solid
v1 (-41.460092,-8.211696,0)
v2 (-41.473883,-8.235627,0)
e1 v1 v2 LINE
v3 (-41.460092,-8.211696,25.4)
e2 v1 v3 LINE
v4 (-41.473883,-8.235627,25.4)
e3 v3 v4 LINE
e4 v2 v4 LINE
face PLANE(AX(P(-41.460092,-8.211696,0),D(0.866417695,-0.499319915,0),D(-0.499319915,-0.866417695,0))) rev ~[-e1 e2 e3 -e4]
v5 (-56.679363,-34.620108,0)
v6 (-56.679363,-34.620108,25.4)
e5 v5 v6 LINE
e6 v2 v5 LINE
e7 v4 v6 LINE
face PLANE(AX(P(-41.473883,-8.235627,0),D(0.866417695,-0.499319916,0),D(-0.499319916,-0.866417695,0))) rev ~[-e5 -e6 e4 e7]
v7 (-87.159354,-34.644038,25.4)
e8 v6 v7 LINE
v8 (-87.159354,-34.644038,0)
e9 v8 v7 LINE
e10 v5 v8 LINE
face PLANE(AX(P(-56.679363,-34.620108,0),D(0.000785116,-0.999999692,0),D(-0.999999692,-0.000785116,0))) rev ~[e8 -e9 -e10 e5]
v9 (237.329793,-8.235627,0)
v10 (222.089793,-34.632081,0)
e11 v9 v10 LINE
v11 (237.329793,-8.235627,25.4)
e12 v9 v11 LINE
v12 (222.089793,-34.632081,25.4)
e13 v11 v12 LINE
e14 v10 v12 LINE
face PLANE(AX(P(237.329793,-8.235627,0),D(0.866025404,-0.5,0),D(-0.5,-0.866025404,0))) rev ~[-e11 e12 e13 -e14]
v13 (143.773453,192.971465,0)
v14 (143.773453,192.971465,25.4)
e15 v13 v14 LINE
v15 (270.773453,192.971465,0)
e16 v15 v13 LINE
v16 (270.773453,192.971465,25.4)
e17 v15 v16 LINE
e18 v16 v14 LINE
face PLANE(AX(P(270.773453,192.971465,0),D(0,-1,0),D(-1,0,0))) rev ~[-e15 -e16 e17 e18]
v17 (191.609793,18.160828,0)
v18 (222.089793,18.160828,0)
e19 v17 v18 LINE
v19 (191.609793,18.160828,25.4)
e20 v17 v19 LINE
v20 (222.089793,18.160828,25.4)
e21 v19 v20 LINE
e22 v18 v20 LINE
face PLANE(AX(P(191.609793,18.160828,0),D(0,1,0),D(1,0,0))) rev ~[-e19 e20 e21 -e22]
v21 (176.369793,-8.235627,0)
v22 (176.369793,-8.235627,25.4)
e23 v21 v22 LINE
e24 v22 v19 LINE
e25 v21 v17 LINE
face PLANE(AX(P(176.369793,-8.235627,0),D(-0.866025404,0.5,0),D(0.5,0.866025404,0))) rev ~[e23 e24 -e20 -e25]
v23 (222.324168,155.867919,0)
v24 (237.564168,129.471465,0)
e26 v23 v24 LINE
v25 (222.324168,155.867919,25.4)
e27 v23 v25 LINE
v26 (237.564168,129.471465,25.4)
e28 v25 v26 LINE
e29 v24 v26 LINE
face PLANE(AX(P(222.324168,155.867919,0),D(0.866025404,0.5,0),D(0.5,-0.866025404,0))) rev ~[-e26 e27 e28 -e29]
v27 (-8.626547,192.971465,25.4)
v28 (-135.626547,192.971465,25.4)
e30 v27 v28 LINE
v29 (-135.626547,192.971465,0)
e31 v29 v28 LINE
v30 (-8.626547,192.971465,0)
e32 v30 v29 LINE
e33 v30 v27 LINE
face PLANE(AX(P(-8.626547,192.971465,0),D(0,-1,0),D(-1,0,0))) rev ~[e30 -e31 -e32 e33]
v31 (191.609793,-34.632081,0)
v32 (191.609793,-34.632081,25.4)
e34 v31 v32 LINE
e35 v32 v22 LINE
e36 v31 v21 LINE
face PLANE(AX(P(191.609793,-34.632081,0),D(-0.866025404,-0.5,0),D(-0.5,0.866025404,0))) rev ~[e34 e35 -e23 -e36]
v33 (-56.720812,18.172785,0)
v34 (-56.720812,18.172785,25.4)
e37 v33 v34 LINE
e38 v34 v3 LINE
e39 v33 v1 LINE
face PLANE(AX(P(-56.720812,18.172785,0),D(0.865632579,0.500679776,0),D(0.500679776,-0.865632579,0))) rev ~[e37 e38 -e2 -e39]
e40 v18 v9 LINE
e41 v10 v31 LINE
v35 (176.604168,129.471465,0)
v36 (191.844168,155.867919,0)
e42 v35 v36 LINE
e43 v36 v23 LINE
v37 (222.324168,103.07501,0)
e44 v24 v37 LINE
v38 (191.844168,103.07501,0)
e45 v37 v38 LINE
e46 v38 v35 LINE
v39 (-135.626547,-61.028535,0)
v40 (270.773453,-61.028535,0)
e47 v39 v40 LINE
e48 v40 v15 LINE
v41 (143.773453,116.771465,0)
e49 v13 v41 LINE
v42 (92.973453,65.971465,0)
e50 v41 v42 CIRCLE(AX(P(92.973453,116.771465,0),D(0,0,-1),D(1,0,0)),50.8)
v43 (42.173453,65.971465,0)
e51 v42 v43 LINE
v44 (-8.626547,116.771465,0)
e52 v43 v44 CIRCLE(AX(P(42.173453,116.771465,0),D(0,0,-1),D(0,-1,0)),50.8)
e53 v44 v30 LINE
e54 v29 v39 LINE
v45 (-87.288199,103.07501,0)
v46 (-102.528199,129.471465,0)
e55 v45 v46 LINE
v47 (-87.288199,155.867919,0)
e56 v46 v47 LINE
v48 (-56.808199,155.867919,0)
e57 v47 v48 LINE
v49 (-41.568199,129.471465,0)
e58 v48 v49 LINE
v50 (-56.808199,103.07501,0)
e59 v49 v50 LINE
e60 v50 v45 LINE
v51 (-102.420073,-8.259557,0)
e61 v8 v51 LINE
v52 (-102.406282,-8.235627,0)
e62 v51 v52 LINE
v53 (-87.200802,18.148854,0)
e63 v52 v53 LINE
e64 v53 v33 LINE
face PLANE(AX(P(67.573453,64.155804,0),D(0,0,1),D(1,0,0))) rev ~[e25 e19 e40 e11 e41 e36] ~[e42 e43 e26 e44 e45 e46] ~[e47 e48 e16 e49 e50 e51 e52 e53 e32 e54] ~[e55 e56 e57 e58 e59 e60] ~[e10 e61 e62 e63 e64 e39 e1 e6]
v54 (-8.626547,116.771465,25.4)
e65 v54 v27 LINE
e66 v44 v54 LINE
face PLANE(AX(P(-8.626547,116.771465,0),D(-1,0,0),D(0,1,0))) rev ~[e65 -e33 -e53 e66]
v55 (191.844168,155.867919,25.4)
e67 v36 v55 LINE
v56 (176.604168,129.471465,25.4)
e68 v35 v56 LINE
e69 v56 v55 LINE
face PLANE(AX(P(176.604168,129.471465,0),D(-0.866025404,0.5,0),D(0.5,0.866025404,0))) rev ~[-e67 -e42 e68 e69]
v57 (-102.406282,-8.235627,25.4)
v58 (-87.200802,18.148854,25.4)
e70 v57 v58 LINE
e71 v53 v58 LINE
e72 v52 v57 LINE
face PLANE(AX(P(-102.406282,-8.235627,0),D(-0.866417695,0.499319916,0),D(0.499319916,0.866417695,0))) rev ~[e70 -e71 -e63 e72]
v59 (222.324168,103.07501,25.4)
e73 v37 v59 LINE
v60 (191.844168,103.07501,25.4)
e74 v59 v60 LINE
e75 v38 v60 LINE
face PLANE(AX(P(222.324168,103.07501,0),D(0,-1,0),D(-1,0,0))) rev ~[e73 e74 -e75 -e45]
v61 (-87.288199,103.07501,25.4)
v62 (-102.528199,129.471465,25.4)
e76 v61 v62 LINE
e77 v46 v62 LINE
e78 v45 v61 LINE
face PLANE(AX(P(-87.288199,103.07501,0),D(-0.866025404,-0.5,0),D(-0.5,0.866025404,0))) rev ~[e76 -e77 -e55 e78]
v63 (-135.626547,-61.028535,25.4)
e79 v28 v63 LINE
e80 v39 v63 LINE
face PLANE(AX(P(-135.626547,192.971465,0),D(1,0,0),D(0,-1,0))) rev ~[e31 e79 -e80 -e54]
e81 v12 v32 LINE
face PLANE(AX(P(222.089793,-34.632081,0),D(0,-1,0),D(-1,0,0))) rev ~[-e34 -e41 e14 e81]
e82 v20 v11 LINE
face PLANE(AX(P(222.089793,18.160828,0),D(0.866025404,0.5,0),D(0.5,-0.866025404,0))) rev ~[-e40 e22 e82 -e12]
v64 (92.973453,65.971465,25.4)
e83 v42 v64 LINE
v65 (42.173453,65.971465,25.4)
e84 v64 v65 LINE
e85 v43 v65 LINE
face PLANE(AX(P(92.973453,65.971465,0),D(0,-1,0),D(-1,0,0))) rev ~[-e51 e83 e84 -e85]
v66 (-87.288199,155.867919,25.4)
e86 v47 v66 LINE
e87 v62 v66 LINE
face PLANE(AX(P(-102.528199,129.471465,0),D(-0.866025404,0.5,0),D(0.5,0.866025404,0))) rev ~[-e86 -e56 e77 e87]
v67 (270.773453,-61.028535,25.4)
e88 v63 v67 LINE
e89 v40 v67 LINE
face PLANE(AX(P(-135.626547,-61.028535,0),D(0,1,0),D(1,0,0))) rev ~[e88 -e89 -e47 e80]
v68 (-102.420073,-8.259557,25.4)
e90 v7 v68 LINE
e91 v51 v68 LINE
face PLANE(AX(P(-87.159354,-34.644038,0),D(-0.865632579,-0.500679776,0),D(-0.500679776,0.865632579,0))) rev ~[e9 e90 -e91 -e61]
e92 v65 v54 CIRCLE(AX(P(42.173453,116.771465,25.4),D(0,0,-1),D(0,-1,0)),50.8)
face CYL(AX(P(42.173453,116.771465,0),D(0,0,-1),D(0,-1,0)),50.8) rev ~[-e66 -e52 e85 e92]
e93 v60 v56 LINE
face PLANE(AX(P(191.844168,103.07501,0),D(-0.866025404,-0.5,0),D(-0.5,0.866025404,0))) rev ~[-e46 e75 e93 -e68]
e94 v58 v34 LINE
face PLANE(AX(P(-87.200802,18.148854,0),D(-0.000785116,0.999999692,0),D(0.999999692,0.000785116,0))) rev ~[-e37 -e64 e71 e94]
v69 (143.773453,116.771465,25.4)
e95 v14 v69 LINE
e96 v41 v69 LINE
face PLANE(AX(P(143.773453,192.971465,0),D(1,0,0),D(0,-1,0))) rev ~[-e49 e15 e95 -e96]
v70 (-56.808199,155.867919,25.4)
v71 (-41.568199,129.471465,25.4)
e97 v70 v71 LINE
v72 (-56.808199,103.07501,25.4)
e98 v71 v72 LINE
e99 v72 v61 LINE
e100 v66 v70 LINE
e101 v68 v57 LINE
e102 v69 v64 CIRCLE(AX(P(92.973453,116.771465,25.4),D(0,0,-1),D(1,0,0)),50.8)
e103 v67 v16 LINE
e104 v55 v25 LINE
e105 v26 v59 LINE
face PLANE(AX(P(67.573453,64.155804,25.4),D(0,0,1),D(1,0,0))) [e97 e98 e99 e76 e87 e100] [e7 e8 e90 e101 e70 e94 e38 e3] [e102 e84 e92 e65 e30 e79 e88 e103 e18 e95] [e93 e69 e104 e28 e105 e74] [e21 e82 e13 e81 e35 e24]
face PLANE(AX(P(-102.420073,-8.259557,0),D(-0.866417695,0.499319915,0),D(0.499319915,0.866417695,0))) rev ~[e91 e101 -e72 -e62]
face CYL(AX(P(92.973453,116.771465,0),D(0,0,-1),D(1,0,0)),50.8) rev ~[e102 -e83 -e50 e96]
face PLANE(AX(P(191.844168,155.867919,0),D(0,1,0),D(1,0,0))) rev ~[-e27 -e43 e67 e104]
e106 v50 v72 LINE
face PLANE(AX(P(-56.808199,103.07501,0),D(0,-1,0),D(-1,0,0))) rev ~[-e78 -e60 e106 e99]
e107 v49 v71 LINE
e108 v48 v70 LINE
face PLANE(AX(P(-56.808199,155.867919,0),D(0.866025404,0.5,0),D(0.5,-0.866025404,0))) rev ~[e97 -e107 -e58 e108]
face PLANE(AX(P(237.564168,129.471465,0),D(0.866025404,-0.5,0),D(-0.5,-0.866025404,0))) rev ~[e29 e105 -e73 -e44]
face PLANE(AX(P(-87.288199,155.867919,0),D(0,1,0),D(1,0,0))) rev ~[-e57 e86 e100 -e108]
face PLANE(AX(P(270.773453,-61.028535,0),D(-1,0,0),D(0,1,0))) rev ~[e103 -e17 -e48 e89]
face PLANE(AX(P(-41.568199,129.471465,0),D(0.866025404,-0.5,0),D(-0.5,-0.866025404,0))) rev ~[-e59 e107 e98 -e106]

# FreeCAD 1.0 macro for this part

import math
import FreeCAD as App
import Part
import Sketcher

V = App.Vector
Q = App.Units.Quantity


def add_polygon(sketch, points):
    """Adds a closed chain of lines whose ends are joined by coincident constraints."""
    first, n = sketch.GeometryCount, len(points)
    for a, b in zip(points, points[1:] + points[:1]):
        sketch.addGeometry(Part.LineSegment(App.Vector(*a, 0), App.Vector(*b, 0)), False)
    for i in range(n):
        sketch.addConstraint(Sketcher.Constraint("Coincident", first + i, 2, first + (i + 1) % n, 1))

doc = App.newDocument("Part")
body = doc.addObject("PartDesign::Body", "Body")

sketch1 = doc.addObject("Sketcher::SketchObject", "Sketch")
body.addObject(sketch1)
sketch1.AttachmentSupport = (doc.XY_Plane, [""])
sketch1.MapMode = "FlatFace"
sketch1.addGeometry(Part.LineSegment(V(-135.626547, 192.971465, 0), V(-135.626547, -61.028535, 0)), False)
sketch1.addGeometry(Part.LineSegment(V(-135.626547, -61.028535, 0), V(270.773453, -61.028535, 0)), False)
sketch1.addGeometry(Part.LineSegment(V(270.773453, -61.028535, 0), V(270.773453, 192.971465, 0)), False)
sketch1.addGeometry(Part.LineSegment(V(270.773453, 192.971465, 0), V(143.773453, 192.971465, 0)), False)
sketch1.addGeometry(Part.LineSegment(V(143.773453, 192.971465, 0), V(143.773453, 116.771465, 0)), False)
sketch1.addGeometry(Part.ArcOfCircle(Part.Circle(V(92.973453, 116.771465, 0), V(0, 0, 1), 50.8), math.radians(-90), math.radians(0)), False)
sketch1.addGeometry(Part.LineSegment(V(92.973453, 65.971465, 0), V(42.173453, 65.971465, 0)), False)
sketch1.addGeometry(Part.ArcOfCircle(Part.Circle(V(42.173453, 116.771465, 0), V(0, 0, 1), 50.8), math.radians(180), math.radians(270)), False)
sketch1.addGeometry(Part.LineSegment(V(-8.626547, 116.771465, 0), V(-8.626547, 192.971465, 0)), False)
sketch1.addGeometry(Part.LineSegment(V(-8.626547, 192.971465, 0), V(-135.626547, 192.971465, 0)), False)
add_polygon(sketch1, [(-41.460092, -8.211696), (-41.473883, -8.235627), (-56.679363, -34.620108), (-87.159354, -34.644038), (-102.420073, -8.259557), (-102.406282, -8.235627), (-87.200802, 18.148854), (-56.720812, 18.172785)])
add_polygon(sketch1, [(222.089793, 18.160828), (237.329793, -8.235627), (222.089793, -34.632081), (191.609793, -34.632081), (176.369793, -8.235627), (191.609793, 18.160828)])
add_polygon(sketch1, [(-56.808199, 155.867919), (-41.568199, 129.471465), (-56.808199, 103.07501), (-87.288199, 103.07501), (-102.528199, 129.471465), (-87.288199, 155.867919)])
add_polygon(sketch1, [(222.324168, 155.867919), (237.564168, 129.471465), (222.324168, 103.07501), (191.844168, 103.07501), (176.604168, 129.471465), (191.844168, 155.867919)])
sketch1.addConstraint(Sketcher.Constraint("Coincident", 0, 2, 1, 1))
sketch1.addConstraint(Sketcher.Constraint("Coincident", 1, 2, 2, 1))
sketch1.addConstraint(Sketcher.Constraint("Coincident", 2, 2, 3, 1))
sketch1.addConstraint(Sketcher.Constraint("Coincident", 3, 2, 4, 1))
sketch1.addConstraint(Sketcher.Constraint("Tangent", 4, 2, 5, 2))
sketch1.addConstraint(Sketcher.Constraint("Tangent", 5, 1, 6, 1))
sketch1.addConstraint(Sketcher.Constraint("Tangent", 6, 2, 7, 2))
sketch1.addConstraint(Sketcher.Constraint("Tangent", 7, 1, 8, 1))
sketch1.addConstraint(Sketcher.Constraint("Coincident", 8, 2, 9, 1))
sketch1.addConstraint(Sketcher.Constraint("Coincident", 9, 2, 0, 1))
sketch1.addConstraint(Sketcher.Constraint("Vertical", 0))
sketch1.addConstraint(Sketcher.Constraint("Horizontal", 1))
sketch1.addConstraint(Sketcher.Constraint("Vertical", 2))
sketch1.addConstraint(Sketcher.Constraint("Horizontal", 3))
sketch1.addConstraint(Sketcher.Constraint("Vertical", 4))
sketch1.addConstraint(Sketcher.Constraint("Horizontal", 6))
sketch1.addConstraint(Sketcher.Constraint("Vertical", 8))
sketch1.addConstraint(Sketcher.Constraint("Horizontal", 9))
sketch1.addConstraint(Sketcher.Constraint("Horizontal", 20))
sketch1.addConstraint(Sketcher.Constraint("Horizontal", 23))
sketch1.addConstraint(Sketcher.Constraint("Horizontal", 26))
sketch1.addConstraint(Sketcher.Constraint("Horizontal", 29))
sketch1.addConstraint(Sketcher.Constraint("Horizontal", 32))
sketch1.addConstraint(Sketcher.Constraint("Horizontal", 35))
sketch1.addConstraint(Sketcher.Constraint("Equal", 5, 7))
sketch1.addConstraint(Sketcher.Constraint("Parallel", 10, 11))
sketch1.addConstraint(Sketcher.Constraint("Parallel", 11, 14))
sketch1.addConstraint(Sketcher.Constraint("Parallel", 11, 15))
sketch1.addConstraint(Sketcher.Constraint("Parallel", 12, 16))
sketch1.addConstraint(Sketcher.Constraint("Parallel", 13, 17))
sketch1.addConstraint(Sketcher.Constraint("Parallel", 18, 21))
sketch1.addConstraint(Sketcher.Constraint("Parallel", 19, 22))
sketch1.addConstraint(Sketcher.Constraint("Parallel", 21, 24))
sketch1.addConstraint(Sketcher.Constraint("Parallel", 22, 25))
sketch1.addConstraint(Sketcher.Constraint("Parallel", 24, 27))
sketch1.addConstraint(Sketcher.Constraint("Parallel", 25, 28))
sketch1.addConstraint(Sketcher.Constraint("Parallel", 27, 30))
sketch1.addConstraint(Sketcher.Constraint("Parallel", 28, 31))
sketch1.addConstraint(Sketcher.Constraint("Parallel", 30, 33))
sketch1.addConstraint(Sketcher.Constraint("Parallel", 31, 34))
sketch1.addConstraint(Sketcher.Constraint("Horizontal", 3, 2, 8, 2))
sketch1.addConstraint(Sketcher.Constraint("Horizontal", 10, 2, 14, 2))
sketch1.addConstraint(Sketcher.Constraint("Horizontal", 14, 2, 18, 2))
sketch1.addConstraint(Sketcher.Constraint("Horizontal", 18, 2, 21, 2))
sketch1.addConstraint(Sketcher.Constraint("Horizontal", 24, 2, 27, 2))
sketch1.addConstraint(Sketcher.Constraint("Horizontal", 27, 2, 30, 2))
sketch1.addConstraint(Sketcher.Constraint("Horizontal", 26, 2, 31, 2))
sketch1.addConstraint(Sketcher.Constraint("Horizontal", 30, 2, 33, 2))
sketch1.addConstraint(Sketcher.Constraint("Horizontal", 29, 2, 34, 2))
sketch1.addConstraint(Sketcher.Constraint("Vertical", 20, 2, 22, 2))
sketch1.addConstraint(Sketcher.Constraint("Vertical", 19, 2, 23, 2))
sketch1.addConstraint(Sketcher.Constraint("Vertical", 26, 2, 28, 2))
sketch1.addConstraint(Sketcher.Constraint("Equal", 3, 9))
sketch1.addConstraint(Sketcher.Constraint("Equal", 23, 26))
sketch1.addConstraint(Sketcher.Constraint("Equal", 29, 32))
sketch1.addConstraint(Sketcher.Constraint("Equal", 12, 13))
sketch1.addConstraint(Sketcher.Constraint("Equal", 10, 14))
sketch1.addConstraint(Sketcher.Constraint("Equal", 11, 15))
sketch1.addConstraint(Sketcher.Constraint("Equal", 17, 18))
sketch1.addConstraint(Sketcher.Constraint("Equal", 22, 24))
sketch1.addConstraint(Sketcher.Constraint("Radius", 5, Q("2 in")))
sketch1.addConstraint(Sketcher.Constraint("DistanceX", 1, 1, 1, 2, Q("16 in")))
sketch1.addConstraint(Sketcher.Constraint("DistanceX", 3, 2, 3, 1, Q("5 in")))
sketch1.addConstraint(Sketcher.Constraint("DistanceY", 0, 2, 0, 1, Q("10 in")))
sketch1.addConstraint(Sketcher.Constraint("DistanceY", 4, 2, 4, 1, Q("3 in")))
sketch1.addConstraint(Sketcher.Constraint("DistanceX", 20, 2, 20, 1, Q("1.2 in")))
sketch1.addConstraint(Sketcher.Constraint("Angle", 18, Q("-60 deg")))
sketch1.addConstraint(Sketcher.Constraint("Distance", 12, Q("1.2 in")))
sketch1.addConstraint(Sketcher.Constraint("DistanceY", 7, 1, 24, 2, Q("0.5 in")))
sketch1.addConstraint(Sketcher.Constraint("DistanceX", 24, 2, -1, 1, Q("41.568199 mm")))
sketch1.addConstraint(Sketcher.Constraint("DistanceX", 14, 2, 10, 2, Q("60.932399 mm")))
sketch1.addConstraint(Sketcher.Constraint("Distance", 10, Q("0.02762 mm")))
sketch1.addConstraint(Sketcher.Constraint("Distance", 11, Q("30.45238 mm")))
sketch1.addConstraint(Sketcher.Constraint("DistanceY", 12, 2, -1, 1, Q("34.644038 mm")))
sketch1.addConstraint(Sketcher.Constraint("DistanceX", 16, 2, -1, 1, Q("56.720812 mm")))
sketch1.addConstraint(Sketcher.Constraint("DistanceY", 19, 2, -1, 1, Q("34.632081 mm")))
sketch1.addConstraint(Sketcher.Constraint("DistanceY", -1, 1, 25, 2, Q("103.07501 mm")))
sketch1.addConstraint(Sketcher.Constraint("DistanceX", 18, 2, 1, 2, Q("33.44366 mm")))
sketch1.addConstraint(Sketcher.Constraint("DistanceX", 24, 2, 7, 1, Q("32.941652 mm")))
sketch1.addConstraint(Sketcher.Constraint("DistanceX", -1, 1, 30, 2, Q("237.564168 mm")))
pad1 = doc.addObject("PartDesign::Pad", "Pad")
body.addObject(pad1)
pad1.Profile = sketch1
pad1.Length = Q("1 in")

doc.recompute()
